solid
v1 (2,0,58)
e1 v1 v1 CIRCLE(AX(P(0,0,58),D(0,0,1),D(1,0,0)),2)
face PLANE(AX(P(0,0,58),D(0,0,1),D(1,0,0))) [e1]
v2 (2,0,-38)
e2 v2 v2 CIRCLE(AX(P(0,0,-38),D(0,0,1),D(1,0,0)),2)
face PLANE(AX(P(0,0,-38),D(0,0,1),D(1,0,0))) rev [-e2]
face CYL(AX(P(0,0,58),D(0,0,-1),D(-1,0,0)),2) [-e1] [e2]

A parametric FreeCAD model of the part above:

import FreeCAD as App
import Part
import Sketcher

V = App.Vector

doc = App.newDocument("Part")
params = doc.addObject("Spreadsheet::Sheet", "Params")
for row, (alias, value) in enumerate([
    ("sketch1_diameter", "4 mm"),
    ("pad1_length", "96 mm"),
], start=1):
    params.set(f"A{row}", alias)
    params.set(f"B{row}", "=" + value)
    params.setAlias(f"B{row}", alias)

body = doc.addObject("PartDesign::Body", "Body")

# Sketch on XY plane
sketch1 = body.newObject("Sketcher::SketchObject", "Sketch")
sketch1.AttachmentSupport = (doc.getObject("XY_Plane"), [""])
sketch1.MapMode = "FlatFace"
sketch1.AttachmentOffset = App.Placement(V(0, 0, -38), App.Rotation())
sketch1.addGeometry(Part.Circle(V(0, 0, 0), V(0, 0, 1), 2), False)
sketch1.addConstraint(Sketcher.Constraint("Coincident", 0, 3, -1, 1))
sketch1.addConstraint(Sketcher.Constraint("Diameter", 0, 4.0))
sketch1.setExpression("Constraints[1]", "Params.sketch1_diameter")
pad1 = body.newObject("PartDesign::Pad", "Pad")
pad1.Profile = sketch1
pad1.setExpression("Length", "Params.pad1_length")

doc.recompute()
